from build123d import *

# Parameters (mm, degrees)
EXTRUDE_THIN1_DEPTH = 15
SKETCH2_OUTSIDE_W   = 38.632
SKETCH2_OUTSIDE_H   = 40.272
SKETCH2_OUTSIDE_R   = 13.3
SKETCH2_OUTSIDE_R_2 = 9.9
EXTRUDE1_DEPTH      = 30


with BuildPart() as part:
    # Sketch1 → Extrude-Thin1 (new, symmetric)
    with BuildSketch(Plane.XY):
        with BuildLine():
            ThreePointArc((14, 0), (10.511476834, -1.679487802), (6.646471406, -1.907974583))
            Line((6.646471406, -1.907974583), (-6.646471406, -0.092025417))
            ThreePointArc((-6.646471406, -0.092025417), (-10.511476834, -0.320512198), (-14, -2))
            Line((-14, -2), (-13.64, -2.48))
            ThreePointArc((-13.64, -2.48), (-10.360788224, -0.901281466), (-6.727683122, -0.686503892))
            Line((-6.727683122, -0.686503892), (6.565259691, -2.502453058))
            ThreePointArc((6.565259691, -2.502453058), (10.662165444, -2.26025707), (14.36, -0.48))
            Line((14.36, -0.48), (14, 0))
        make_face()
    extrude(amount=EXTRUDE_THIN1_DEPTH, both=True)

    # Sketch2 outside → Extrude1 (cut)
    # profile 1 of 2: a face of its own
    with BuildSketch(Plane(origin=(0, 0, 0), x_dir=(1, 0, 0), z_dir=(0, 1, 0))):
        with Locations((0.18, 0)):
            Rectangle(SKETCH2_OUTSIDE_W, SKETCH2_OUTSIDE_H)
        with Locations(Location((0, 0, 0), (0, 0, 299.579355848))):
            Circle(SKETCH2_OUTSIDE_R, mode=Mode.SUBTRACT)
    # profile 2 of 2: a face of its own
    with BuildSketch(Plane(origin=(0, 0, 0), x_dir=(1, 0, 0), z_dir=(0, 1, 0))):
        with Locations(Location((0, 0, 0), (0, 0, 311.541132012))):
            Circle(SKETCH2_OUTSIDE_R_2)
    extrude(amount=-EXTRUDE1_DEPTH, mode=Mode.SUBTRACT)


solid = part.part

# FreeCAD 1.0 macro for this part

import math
import FreeCAD as App
import Part
import Sketcher
Q = App.Units.Quantity


def add_polygon(sketch, points):
    """Adds a closed chain of lines whose ends are joined by coincident constraints."""
    first, n = sketch.GeometryCount, len(points)
    for a, b in zip(points, points[1:] + points[:1]):
        sketch.addGeometry(Part.LineSegment(App.Vector(*a, 0), App.Vector(*b, 0)), False)
    for i in range(n):
        sketch.addConstraint(Sketcher.Constraint("Coincident", first + i, 2, first + (i + 1) % n, 1))

doc = App.newDocument("Part")
params = doc.addObject("Spreadsheet::Sheet", "Params")
for row, (alias, value) in enumerate([
    ("sketch1_radius", "10 mm"),
    ("sketch1_radius2", "9.4 mm"),
    ("pad1_length", "30 mm"),
    ("sketch2_diameter", "26.6 mm"),
    ("sketch2_diameter2", "19.8 mm"),
    ("pocket1_length", "30 mm"),
], start=1):
    params.set(f"A{row}", alias)
    params.set(f"B{row}", "=" + value)
    params.setAlias(f"B{row}", alias)

body = doc.addObject("PartDesign::Body", "Body")

# Sketch on XY plane
sketch1 = body.newObject("Sketcher::SketchObject", "Sketch")
sketch1.AttachmentSupport = (doc.getObject("XY_Plane"), [""])
sketch1.MapMode = "FlatFace"
sketch1.addGeometry(Part.ArcOfCircle(Part.Circle(App.Vector(8, 8, 0), App.Vector(0, 0, 1), 10), math.radians(-97.779025), math.radians(-53.130102)), False)
sketch1.addGeometry(Part.LineSegment(App.Vector(6.646471, -1.907975, 0), App.Vector(-6.646471, -0.092025, 0)), False)
sketch1.addGeometry(Part.ArcOfCircle(Part.Circle(App.Vector(-8, -10, 0), App.Vector(0, 0, 1), 10), math.radians(82.220975), math.radians(126.869898)), False)
sketch1.addGeometry(Part.LineSegment(App.Vector(-14, -2, 0), App.Vector(-13.64, -2.48, 0)), False)
sketch1.addGeometry(Part.ArcOfCircle(Part.Circle(App.Vector(-8, -10, 0), App.Vector(0, 0, 1), 9.4), math.radians(82.220975), math.radians(126.869898)), False)
sketch1.addGeometry(Part.LineSegment(App.Vector(-6.727683, -0.686504, 0), App.Vector(6.56526, -2.502453, 0)), False)
sketch1.addGeometry(Part.ArcOfCircle(Part.Circle(App.Vector(8, 8, 0), App.Vector(0, 0, 1), 10.6), math.radians(-97.779025), math.radians(-53.130102)), False)
sketch1.addGeometry(Part.LineSegment(App.Vector(14.36, -0.48, 0), App.Vector(14, 0, 0)), False)
sketch1.addConstraint(Sketcher.Constraint("Tangent", 0, 1, 1, 1))
sketch1.addConstraint(Sketcher.Constraint("Tangent", 1, 2, 2, 1))
sketch1.addConstraint(Sketcher.Constraint("Coincident", 2, 2, 3, 1))
sketch1.addConstraint(Sketcher.Constraint("Coincident", 3, 2, 4, 2))
sketch1.addConstraint(Sketcher.Constraint("Tangent", 4, 1, 5, 1))
sketch1.addConstraint(Sketcher.Constraint("Tangent", 5, 2, 6, 1))
sketch1.addConstraint(Sketcher.Constraint("Coincident", 6, 2, 7, 1))
sketch1.addConstraint(Sketcher.Constraint("Coincident", 7, 2, 0, 2))
sketch1.addConstraint(Sketcher.Constraint("Coincident", 4, 3, 2, 3))
sketch1.addConstraint(Sketcher.Constraint("Coincident", 6, 3, 0, 3))
sketch1.addConstraint(Sketcher.Constraint("Equal", 0, 2))
sketch1.addConstraint(Sketcher.Constraint("PointOnObject", 7, 2, -1))
sketch1.addConstraint(Sketcher.Constraint("Parallel", 1, 5))
sketch1.addConstraint(Sketcher.Constraint("Parallel", 3, 7))
sketch1.addConstraint(Sketcher.Constraint("Radius", 0, Q("10 mm")))
sketch1.addConstraint(Sketcher.Constraint("Radius", 4, Q("9.4 mm")))
sketch1.addConstraint(Sketcher.Constraint("DistanceX", -1, 1, 0, 3, Q("8 mm")))
sketch1.addConstraint(Sketcher.Constraint("DistanceY", -1, 1, 0, 3, Q("8 mm")))
sketch1.addConstraint(Sketcher.Constraint("DistanceX", 2, 3, -1, 1, Q("8 mm")))
sketch1.addConstraint(Sketcher.Constraint("DistanceY", 2, 3, -1, 1, Q("10 mm")))
sketch1.addConstraint(Sketcher.Constraint("DistanceX", 2, 2, -1, 1, Q("14 mm")))
sketch1.addConstraint(Sketcher.Constraint("DistanceX", 3, 2, -1, 1, Q("13.64 mm")))
sketch1.setExpression("Constraints[14]", "Params.sketch1_radius")
sketch1.setExpression("Constraints[15]", "Params.sketch1_radius2")
pad1 = body.newObject("PartDesign::Pad", "Pad")
pad1.Profile = sketch1
pad1.setExpression("Length", "Params.pad1_length")
pad1.Midplane = True

# Sketch on XZ plane
sketch2 = body.newObject("Sketcher::SketchObject", "Sketch001")
sketch2.AttachmentSupport = (doc.getObject("XZ_Plane"), [""])
sketch2.MapMode = "FlatFace"
add_polygon(sketch2, [(-19.136, -20.136), (-19.136, 20.136), (19.496, 20.136), (19.496, -20.136)])  # lines 0-3
sketch2.addGeometry(Part.Circle(App.Vector(0, 0, 0), App.Vector(0, 0, 1), 13.3), False)  # 4
sketch2.addGeometry(Part.Circle(App.Vector(0, 0, 0), App.Vector(0, 0, 1), 9.9), False)  # 5
sketch2.addConstraint(Sketcher.Constraint("Vertical", 0))
sketch2.addConstraint(Sketcher.Constraint("Horizontal", 1))
sketch2.addConstraint(Sketcher.Constraint("Vertical", 2))
sketch2.addConstraint(Sketcher.Constraint("Horizontal", 3))
sketch2.addConstraint(Sketcher.Constraint("Coincident", 4, 3, -1, 1))
sketch2.addConstraint(Sketcher.Constraint("Coincident", 5, 3, -1, 1))
sketch2.addConstraint(Sketcher.Constraint("Diameter", 4, Q("26.6 mm")))
sketch2.addConstraint(Sketcher.Constraint("Diameter", 5, Q("19.8 mm")))
sketch2.addConstraint(Sketcher.Constraint("DistanceX", 1, 1, 1, 2, Q("38.632 mm")))
sketch2.addConstraint(Sketcher.Constraint("DistanceY", 0, 1, 0, 2, Q("40.272 mm")))
sketch2.addConstraint(Sketcher.Constraint("DistanceX", 0, 2, -1, 1, Q("19.136 mm")))
sketch2.addConstraint(Sketcher.Constraint("DistanceY", -1, 1, 0, 2, Q("20.136 mm")))
sketch2.setExpression("Constraints[10]", "Params.sketch2_diameter")
sketch2.setExpression("Constraints[11]", "Params.sketch2_diameter2")
pocket1 = body.newObject("PartDesign::Pocket", "Pocket")
pocket1.Profile = sketch2
pocket1.setExpression("Length", "Params.pocket1_length")
pocket1.Reversed = True

doc.recompute()
